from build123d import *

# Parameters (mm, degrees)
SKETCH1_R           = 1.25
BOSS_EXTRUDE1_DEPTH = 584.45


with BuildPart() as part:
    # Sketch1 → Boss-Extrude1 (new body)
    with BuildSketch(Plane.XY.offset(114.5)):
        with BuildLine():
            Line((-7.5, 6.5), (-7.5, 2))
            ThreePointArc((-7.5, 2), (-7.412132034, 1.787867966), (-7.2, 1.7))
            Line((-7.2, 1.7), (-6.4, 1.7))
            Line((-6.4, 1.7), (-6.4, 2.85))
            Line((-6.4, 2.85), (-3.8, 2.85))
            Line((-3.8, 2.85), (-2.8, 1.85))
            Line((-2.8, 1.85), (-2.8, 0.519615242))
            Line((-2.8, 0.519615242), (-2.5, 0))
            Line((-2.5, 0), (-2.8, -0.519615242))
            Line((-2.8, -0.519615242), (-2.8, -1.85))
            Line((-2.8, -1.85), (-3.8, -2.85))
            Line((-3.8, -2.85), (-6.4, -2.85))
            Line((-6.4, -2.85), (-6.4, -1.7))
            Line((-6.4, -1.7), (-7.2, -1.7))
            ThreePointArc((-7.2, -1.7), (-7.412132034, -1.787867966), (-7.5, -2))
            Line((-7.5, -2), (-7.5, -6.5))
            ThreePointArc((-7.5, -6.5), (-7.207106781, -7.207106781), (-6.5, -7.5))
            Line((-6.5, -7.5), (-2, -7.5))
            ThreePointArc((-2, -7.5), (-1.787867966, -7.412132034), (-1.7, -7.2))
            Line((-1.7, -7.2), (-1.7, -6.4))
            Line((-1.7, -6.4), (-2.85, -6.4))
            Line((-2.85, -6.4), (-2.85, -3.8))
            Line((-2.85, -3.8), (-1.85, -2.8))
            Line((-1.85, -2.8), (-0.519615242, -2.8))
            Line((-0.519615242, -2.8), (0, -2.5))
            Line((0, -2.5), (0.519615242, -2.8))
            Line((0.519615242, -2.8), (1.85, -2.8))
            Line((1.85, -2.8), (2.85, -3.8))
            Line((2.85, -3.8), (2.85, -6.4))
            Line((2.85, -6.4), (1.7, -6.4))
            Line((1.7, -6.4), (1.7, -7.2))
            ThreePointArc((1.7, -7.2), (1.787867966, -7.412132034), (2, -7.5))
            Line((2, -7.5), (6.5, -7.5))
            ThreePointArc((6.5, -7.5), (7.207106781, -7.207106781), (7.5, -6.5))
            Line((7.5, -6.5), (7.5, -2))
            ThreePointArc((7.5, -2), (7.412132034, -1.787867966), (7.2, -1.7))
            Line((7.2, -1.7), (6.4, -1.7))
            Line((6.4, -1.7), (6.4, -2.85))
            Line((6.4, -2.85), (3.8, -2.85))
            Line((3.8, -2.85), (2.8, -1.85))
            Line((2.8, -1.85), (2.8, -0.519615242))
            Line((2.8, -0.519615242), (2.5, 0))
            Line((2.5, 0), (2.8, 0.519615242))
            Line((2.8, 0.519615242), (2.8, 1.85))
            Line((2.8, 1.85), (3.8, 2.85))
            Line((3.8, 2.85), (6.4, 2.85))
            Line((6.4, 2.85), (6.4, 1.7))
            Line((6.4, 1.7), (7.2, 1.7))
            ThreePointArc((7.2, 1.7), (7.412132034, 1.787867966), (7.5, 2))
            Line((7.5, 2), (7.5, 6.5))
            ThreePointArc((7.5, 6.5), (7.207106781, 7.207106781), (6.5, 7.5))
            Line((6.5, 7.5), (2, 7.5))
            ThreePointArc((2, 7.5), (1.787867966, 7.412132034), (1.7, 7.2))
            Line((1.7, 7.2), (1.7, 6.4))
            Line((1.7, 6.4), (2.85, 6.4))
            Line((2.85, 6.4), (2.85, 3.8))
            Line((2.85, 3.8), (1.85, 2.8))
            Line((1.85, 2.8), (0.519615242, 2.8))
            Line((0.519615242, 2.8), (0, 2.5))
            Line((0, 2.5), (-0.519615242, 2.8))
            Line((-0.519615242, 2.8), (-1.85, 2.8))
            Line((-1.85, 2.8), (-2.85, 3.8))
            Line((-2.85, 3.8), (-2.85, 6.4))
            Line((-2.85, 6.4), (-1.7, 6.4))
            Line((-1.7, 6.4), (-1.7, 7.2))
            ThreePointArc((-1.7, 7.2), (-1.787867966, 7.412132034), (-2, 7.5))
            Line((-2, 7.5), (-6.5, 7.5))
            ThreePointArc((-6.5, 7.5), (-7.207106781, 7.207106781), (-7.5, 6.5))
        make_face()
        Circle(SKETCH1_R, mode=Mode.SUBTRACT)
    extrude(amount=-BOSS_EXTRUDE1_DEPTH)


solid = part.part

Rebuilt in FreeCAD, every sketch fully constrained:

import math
import FreeCAD as App
import Part
import Sketcher

V = App.Vector
Q = App.Units.Quantity

doc = App.newDocument("Part")
body = doc.addObject("PartDesign::Body", "Body")

# Sketch on XY plane
sketch1 = body.newObject("Sketcher::SketchObject", "Sketch")
sketch1.AttachmentSupport = (doc.getObject("XY_Plane"), [""])
sketch1.MapMode = "FlatFace"
sketch1.AttachmentOffset = App.Placement(V(0, 0, 114.5), App.Rotation())
sketch1.addGeometry([
    Part.LineSegment(V(-7.5, 6.5, 0), V(-7.5, 2, 0)),  # 0
    Part.ArcOfCircle(Part.Circle(V(-7.2, 2, 0), V(0, 0, 1), 0.3), math.radians(-180), math.radians(-90)),  # 1
    Part.LineSegment(V(-7.2, 1.7, 0), V(-6.4, 1.7, 0)),  # 2
    Part.LineSegment(V(-6.4, 1.7, 0), V(-6.4, 2.85, 0)),  # 3
    Part.LineSegment(V(-6.4, 2.85, 0), V(-3.8, 2.85, 0)),  # 4
    Part.LineSegment(V(-3.8, 2.85, 0), V(-2.8, 1.85, 0)),  # 5
    Part.LineSegment(V(-2.8, 1.85, 0), V(-2.8, 0.519615, 0)),  # 6
    Part.LineSegment(V(-2.8, 0.519615, 0), V(-2.5, 0, 0)),  # 7
    Part.LineSegment(V(-2.5, 0, 0), V(-2.8, -0.519615, 0)),  # 8
    Part.LineSegment(V(-2.8, -0.519615, 0), V(-2.8, -1.85, 0)),  # 9
    Part.LineSegment(V(-2.8, -1.85, 0), V(-3.8, -2.85, 0)),  # 10
    Part.LineSegment(V(-3.8, -2.85, 0), V(-6.4, -2.85, 0)),  # 11
    Part.LineSegment(V(-6.4, -2.85, 0), V(-6.4, -1.7, 0)),  # 12
    Part.LineSegment(V(-6.4, -1.7, 0), V(-7.2, -1.7, 0)),  # 13
    Part.ArcOfCircle(Part.Circle(V(-7.2, -2, 0), V(0, 0, 1), 0.3), math.radians(90), math.radians(180)),  # 14
    Part.LineSegment(V(-7.5, -2, 0), V(-7.5, -6.5, 0)),  # 15
    Part.ArcOfCircle(Part.Circle(V(-6.5, -6.5, 0), V(0, 0, 1), 1), math.radians(-180), math.radians(-90)),  # 16
    Part.LineSegment(V(-6.5, -7.5, 0), V(-2, -7.5, 0)),  # 17
    Part.ArcOfCircle(Part.Circle(V(-2, -7.2, 0), V(0, 0, 1), 0.3), math.radians(-90), math.radians(0)),  # 18
    Part.LineSegment(V(-1.7, -7.2, 0), V(-1.7, -6.4, 0)),  # 19
    Part.LineSegment(V(-1.7, -6.4, 0), V(-2.85, -6.4, 0)),  # 20
    Part.LineSegment(V(-2.85, -6.4, 0), V(-2.85, -3.8, 0)),  # 21
    Part.LineSegment(V(-2.85, -3.8, 0), V(-1.85, -2.8, 0)),  # 22
    Part.LineSegment(V(-1.85, -2.8, 0), V(-0.519615, -2.8, 0)),  # 23
    Part.LineSegment(V(-0.519615, -2.8, 0), V(0, -2.5, 0)),  # 24
    Part.LineSegment(V(0, -2.5, 0), V(0.519615, -2.8, 0)),  # 25
    Part.LineSegment(V(0.519615, -2.8, 0), V(1.85, -2.8, 0)),  # 26
    Part.LineSegment(V(1.85, -2.8, 0), V(2.85, -3.8, 0)),  # 27
    Part.LineSegment(V(2.85, -3.8, 0), V(2.85, -6.4, 0)),  # 28
    Part.LineSegment(V(2.85, -6.4, 0), V(1.7, -6.4, 0)),  # 29
    Part.LineSegment(V(1.7, -6.4, 0), V(1.7, -7.2, 0)),  # 30
    Part.ArcOfCircle(Part.Circle(V(2, -7.2, 0), V(0, 0, 1), 0.3), math.radians(-180), math.radians(-90)),  # 31
    Part.LineSegment(V(2, -7.5, 0), V(6.5, -7.5, 0)),  # 32
    Part.ArcOfCircle(Part.Circle(V(6.5, -6.5, 0), V(0, 0, 1), 1), math.radians(-90), math.radians(0)),  # 33
    Part.LineSegment(V(7.5, -6.5, 0), V(7.5, -2, 0)),  # 34
    Part.ArcOfCircle(Part.Circle(V(7.2, -2, 0), V(0, 0, 1), 0.3), math.radians(0), math.radians(90)),  # 35
    Part.LineSegment(V(7.2, -1.7, 0), V(6.4, -1.7, 0)),  # 36
    Part.LineSegment(V(6.4, -1.7, 0), V(6.4, -2.85, 0)),  # 37
    Part.LineSegment(V(6.4, -2.85, 0), V(3.8, -2.85, 0)),  # 38
    Part.LineSegment(V(3.8, -2.85, 0), V(2.8, -1.85, 0)),  # 39
    Part.LineSegment(V(2.8, -1.85, 0), V(2.8, -0.519615, 0)),  # 40
    Part.LineSegment(V(2.8, -0.519615, 0), V(2.5, 0, 0)),  # 41
    Part.LineSegment(V(2.5, 0, 0), V(2.8, 0.519615, 0)),  # 42
    Part.LineSegment(V(2.8, 0.519615, 0), V(2.8, 1.85, 0)),  # 43
    Part.LineSegment(V(2.8, 1.85, 0), V(3.8, 2.85, 0)),  # 44
    Part.LineSegment(V(3.8, 2.85, 0), V(6.4, 2.85, 0)),  # 45
    Part.LineSegment(V(6.4, 2.85, 0), V(6.4, 1.7, 0)),  # 46
    Part.LineSegment(V(6.4, 1.7, 0), V(7.2, 1.7, 0)),  # 47
    Part.ArcOfCircle(Part.Circle(V(7.2, 2, 0), V(0, 0, 1), 0.3), math.radians(-90), math.radians(0)),  # 48
    Part.LineSegment(V(7.5, 2, 0), V(7.5, 6.5, 0)),  # 49
    Part.ArcOfCircle(Part.Circle(V(6.5, 6.5, 0), V(0, 0, 1), 1), math.radians(0), math.radians(90)),  # 50
    Part.LineSegment(V(6.5, 7.5, 0), V(2, 7.5, 0)),  # 51
    Part.ArcOfCircle(Part.Circle(V(2, 7.2, 0), V(0, 0, 1), 0.3), math.radians(90), math.radians(180)),  # 52
    Part.LineSegment(V(1.7, 7.2, 0), V(1.7, 6.4, 0)),  # 53
    Part.LineSegment(V(1.7, 6.4, 0), V(2.85, 6.4, 0)),  # 54
    Part.LineSegment(V(2.85, 6.4, 0), V(2.85, 3.8, 0)),  # 55
    Part.LineSegment(V(2.85, 3.8, 0), V(1.85, 2.8, 0)),  # 56
    Part.LineSegment(V(1.85, 2.8, 0), V(0.519615, 2.8, 0)),  # 57
    Part.LineSegment(V(0.519615, 2.8, 0), V(0, 2.5, 0)),  # 58
    Part.LineSegment(V(0, 2.5, 0), V(-0.519615, 2.8, 0)),  # 59
    Part.LineSegment(V(-0.519615, 2.8, 0), V(-1.85, 2.8, 0)),  # 60
    Part.LineSegment(V(-1.85, 2.8, 0), V(-2.85, 3.8, 0)),  # 61
    Part.LineSegment(V(-2.85, 3.8, 0), V(-2.85, 6.4, 0)),  # 62
    Part.LineSegment(V(-2.85, 6.4, 0), V(-1.7, 6.4, 0)),  # 63
    Part.LineSegment(V(-1.7, 6.4, 0), V(-1.7, 7.2, 0)),  # 64
    Part.ArcOfCircle(Part.Circle(V(-2, 7.2, 0), V(0, 0, 1), 0.3), math.radians(0), math.radians(90)),  # 65
    Part.LineSegment(V(-2, 7.5, 0), V(-6.5, 7.5, 0)),  # 66
    Part.ArcOfCircle(Part.Circle(V(-6.5, 6.5, 0), V(0, 0, 1), 1), math.radians(90), math.radians(180)),  # 67
    Part.Circle(V(0, 0, 0), V(0, 0, 1), 1.25),  # 68
], False)
sketch1.addConstraint([
    Sketcher.Constraint("Tangent", 0, 2, 1, 1),
    Sketcher.Constraint("Tangent", 1, 2, 2, 1),
    Sketcher.Constraint("Coincident", 2, 2, 3, 1),
    Sketcher.Constraint("Coincident", 3, 2, 4, 1),
    Sketcher.Constraint("Coincident", 4, 2, 5, 1),
    Sketcher.Constraint("Coincident", 5, 2, 6, 1),
    Sketcher.Constraint("Coincident", 6, 2, 7, 1),
    Sketcher.Constraint("Coincident", 7, 2, 8, 1),
    Sketcher.Constraint("Coincident", 8, 2, 9, 1),
    Sketcher.Constraint("Coincident", 9, 2, 10, 1),
    Sketcher.Constraint("Coincident", 10, 2, 11, 1),
    Sketcher.Constraint("Coincident", 11, 2, 12, 1),
    Sketcher.Constraint("Coincident", 12, 2, 13, 1),
    Sketcher.Constraint("Tangent", 13, 2, 14, 1),
    Sketcher.Constraint("Tangent", 14, 2, 15, 1),
    Sketcher.Constraint("Tangent", 15, 2, 16, 1),
    Sketcher.Constraint("Tangent", 16, 2, 17, 1),
    Sketcher.Constraint("Tangent", 17, 2, 18, 1),
    Sketcher.Constraint("Tangent", 18, 2, 19, 1),
    Sketcher.Constraint("Coincident", 19, 2, 20, 1),
    Sketcher.Constraint("Coincident", 20, 2, 21, 1),
    Sketcher.Constraint("Coincident", 21, 2, 22, 1),
    Sketcher.Constraint("Coincident", 22, 2, 23, 1),
    Sketcher.Constraint("Coincident", 23, 2, 24, 1),
    Sketcher.Constraint("Coincident", 24, 2, 25, 1),
    Sketcher.Constraint("Coincident", 25, 2, 26, 1),
    Sketcher.Constraint("Coincident", 26, 2, 27, 1),
    Sketcher.Constraint("Coincident", 27, 2, 28, 1),
    Sketcher.Constraint("Coincident", 28, 2, 29, 1),
    Sketcher.Constraint("Coincident", 29, 2, 30, 1),
    Sketcher.Constraint("Tangent", 30, 2, 31, 1),
    Sketcher.Constraint("Tangent", 31, 2, 32, 1),
    Sketcher.Constraint("Tangent", 32, 2, 33, 1),
    Sketcher.Constraint("Tangent", 33, 2, 34, 1),
    Sketcher.Constraint("Tangent", 34, 2, 35, 1),
    Sketcher.Constraint("Tangent", 35, 2, 36, 1),
    Sketcher.Constraint("Coincident", 36, 2, 37, 1),
    Sketcher.Constraint("Coincident", 37, 2, 38, 1),
    Sketcher.Constraint("Coincident", 38, 2, 39, 1),
    Sketcher.Constraint("Coincident", 39, 2, 40, 1),
    Sketcher.Constraint("Coincident", 40, 2, 41, 1),
    Sketcher.Constraint("Coincident", 41, 2, 42, 1),
    Sketcher.Constraint("Coincident", 42, 2, 43, 1),
    Sketcher.Constraint("Coincident", 43, 2, 44, 1),
    Sketcher.Constraint("Coincident", 44, 2, 45, 1),
    Sketcher.Constraint("Coincident", 45, 2, 46, 1),
    Sketcher.Constraint("Coincident", 46, 2, 47, 1),
    Sketcher.Constraint("Tangent", 47, 2, 48, 1),
    Sketcher.Constraint("Tangent", 48, 2, 49, 1),
    Sketcher.Constraint("Tangent", 49, 2, 50, 1),
    Sketcher.Constraint("Tangent", 50, 2, 51, 1),
    Sketcher.Constraint("Tangent", 51, 2, 52, 1),
    Sketcher.Constraint("Tangent", 52, 2, 53, 1),
    Sketcher.Constraint("Coincident", 53, 2, 54, 1),
    Sketcher.Constraint("Coincident", 54, 2, 55, 1),
    Sketcher.Constraint("Coincident", 55, 2, 56, 1),
    Sketcher.Constraint("Coincident", 56, 2, 57, 1),
    Sketcher.Constraint("Coincident", 57, 2, 58, 1),
    Sketcher.Constraint("Coincident", 58, 2, 59, 1),
    Sketcher.Constraint("Coincident", 59, 2, 60, 1),
    Sketcher.Constraint("Coincident", 60, 2, 61, 1),
    Sketcher.Constraint("Coincident", 61, 2, 62, 1),
    Sketcher.Constraint("Coincident", 62, 2, 63, 1),
    Sketcher.Constraint("Coincident", 63, 2, 64, 1),
    Sketcher.Constraint("Tangent", 64, 2, 65, 1),
    Sketcher.Constraint("Tangent", 65, 2, 66, 1),
    Sketcher.Constraint("Tangent", 66, 2, 67, 1),
    Sketcher.Constraint("Tangent", 67, 2, 0, 1),
    Sketcher.Constraint("Vertical", 0),
    Sketcher.Constraint("Horizontal", 2),
    Sketcher.Constraint("Vertical", 3),
    Sketcher.Constraint("Horizontal", 4),
    Sketcher.Constraint("Vertical", 6),
    Sketcher.Constraint("Vertical", 9),
    Sketcher.Constraint("Horizontal", 11),
    Sketcher.Constraint("Vertical", 12),
    Sketcher.Constraint("Horizontal", 13),
    Sketcher.Constraint("Vertical", 15),
    Sketcher.Constraint("Horizontal", 17),
    Sketcher.Constraint("Vertical", 19),
    Sketcher.Constraint("Horizontal", 20),
    Sketcher.Constraint("Vertical", 21),
    Sketcher.Constraint("Horizontal", 23),
    Sketcher.Constraint("Horizontal", 26),
    Sketcher.Constraint("Vertical", 28),
    Sketcher.Constraint("Horizontal", 29),
    Sketcher.Constraint("Vertical", 30),
    Sketcher.Constraint("Horizontal", 32),
    Sketcher.Constraint("Vertical", 34),
    Sketcher.Constraint("Horizontal", 36),
    Sketcher.Constraint("Vertical", 37),
    Sketcher.Constraint("Horizontal", 38),
    Sketcher.Constraint("Vertical", 40),
    Sketcher.Constraint("Vertical", 43),
    Sketcher.Constraint("Horizontal", 45),
    Sketcher.Constraint("Vertical", 46),
    Sketcher.Constraint("Horizontal", 47),
    Sketcher.Constraint("Vertical", 49),
    Sketcher.Constraint("Horizontal", 51),
    Sketcher.Constraint("Vertical", 53),
    Sketcher.Constraint("Horizontal", 54),
    Sketcher.Constraint("Vertical", 55),
    Sketcher.Constraint("Horizontal", 57),
    Sketcher.Constraint("Horizontal", 60),
    Sketcher.Constraint("Vertical", 62),
    Sketcher.Constraint("Horizontal", 63),
    Sketcher.Constraint("Vertical", 64),
    Sketcher.Constraint("Horizontal", 66),
    Sketcher.Constraint("Coincident", 68, 3, -1, 1),
    Sketcher.Constraint("Equal", 1, 14),
    Sketcher.Constraint("Equal", 14, 18),
    Sketcher.Constraint("Equal", 18, 31),
    Sketcher.Constraint("Equal", 16, 33),
    Sketcher.Constraint("Equal", 31, 35),
    Sketcher.Constraint("Equal", 35, 48),
    Sketcher.Constraint("Equal", 33, 50),
    Sketcher.Constraint("Equal", 48, 52),
    Sketcher.Constraint("Equal", 52, 65),
    Sketcher.Constraint("Equal", 50, 67),
    Sketcher.Constraint("Symmetric", 1, 3, 35, 3, -1, 1),
    Sketcher.Constraint("Symmetric", 14, 3, 48, 3, -1, 1),
    Sketcher.Constraint("Symmetric", 18, 3, 52, 3, -1, 1),
    Sketcher.Constraint("Symmetric", 31, 3, 65, 3, -1, 1),
    Sketcher.Constraint("Symmetric", 3, 2, 37, 2, -1, 1),
    Sketcher.Constraint("Symmetric", 5, 2, 39, 2, -1, 1),
    Sketcher.Constraint("Symmetric", 7, 2, 41, 2, -1, 1),
    Sketcher.Constraint("Symmetric", 8, 2, 42, 2, -1, 1),
    Sketcher.Constraint("Symmetric", 10, 2, 44, 2, -1, 1),
    Sketcher.Constraint("Symmetric", 20, 2, 54, 2, -1, 1),
    Sketcher.Constraint("Symmetric", 22, 2, 56, 2, -1, 1),
    Sketcher.Constraint("Symmetric", 24, 2, 58, 2, -1, 1),
    Sketcher.Constraint("Symmetric", 25, 2, 59, 2, -1, 1),
    Sketcher.Constraint("Symmetric", 27, 2, 61, 2, -1, 1),
    Sketcher.Constraint("Symmetric", 18, 3, 31, 3, -2),
    Sketcher.Constraint("Symmetric", 14, 3, 35, 3, -2),
    Sketcher.Constraint("Symmetric", 23, 2, 25, 2, -2),
    Sketcher.Constraint("Symmetric", 21, 2, 27, 2, -2),
    Sketcher.Constraint("Symmetric", 11, 2, 37, 2, -2),
    Sketcher.Constraint("Symmetric", 9, 2, 39, 2, -2),
    Sketcher.Constraint("PointOnObject", 7, 2, -1),
    Sketcher.Constraint("PointOnObject", 24, 2, -2),
    Sketcher.Constraint("Perpendicular", 5, 10),
    Sketcher.Constraint("Parallel", 10, 22),
    Sketcher.Constraint("Perpendicular", 7, 24),
    Sketcher.Constraint("Perpendicular", 8, 25),
    Sketcher.Constraint("Perpendicular", 22, 27),
    Sketcher.Constraint("Parallel", 27, 39),
    Sketcher.Constraint("Perpendicular", 24, 41),
    Sketcher.Constraint("Perpendicular", 39, 44),
    Sketcher.Constraint("Parallel", 44, 56),
    Sketcher.Constraint("Perpendicular", 41, 58),
    Sketcher.Constraint("Perpendicular", 56, 61),
    Sketcher.Constraint("Horizontal", 20, 2, 28, 2),
    Sketcher.Constraint("Horizontal", 54, 2, 62, 2),
    Sketcher.Constraint("Vertical", 4, 2, 10, 2),
    Sketcher.Constraint("Vertical", 37, 2, 45, 2),
    Sketcher.Constraint("Equal", 66, 0),
    Sketcher.Constraint("Equal", 63, 3),
    Sketcher.Constraint("Equal", 60, 6),
    Sketcher.Constraint("Equal", 47, 19),
    Sketcher.Constraint("Equal", 45, 21),
    Sketcher.Constraint("Equal", 10, 22),
    Sketcher.Constraint("Equal", 8, 24),
    Sketcher.Constraint("Radius", 16, 1.0),
    Sketcher.Constraint("Diameter", 68, 2.5),
    Sketcher.Constraint("Radius", 1, 0.3),
    Sketcher.Constraint("Angle", 7, Q("-60 deg")),
    Sketcher.Constraint("DistanceX", 2, 1, 2, 2, 0.8),
    Sketcher.Constraint("DistanceX", 4, 1, 4, 2, 2.6),
    Sketcher.Constraint("DistanceX", 17, 1, 17, 2, 4.5),
    Sketcher.Constraint("DistanceY", -1, 1, 1, 3, 2.0),
    Sketcher.Constraint("Distance", 7, 0.6),
    Sketcher.Constraint("DistanceX", 20, 2, 20, 1, 1.15),
    Sketcher.Constraint("DistanceX", 5, 2, -1, 1, 2.8),
])
pad1 = body.newObject("PartDesign::Pad", "Pad")
pad1.Profile = sketch1
pad1.Length = 584.45
pad1.Reversed = True

doc.recompute()
